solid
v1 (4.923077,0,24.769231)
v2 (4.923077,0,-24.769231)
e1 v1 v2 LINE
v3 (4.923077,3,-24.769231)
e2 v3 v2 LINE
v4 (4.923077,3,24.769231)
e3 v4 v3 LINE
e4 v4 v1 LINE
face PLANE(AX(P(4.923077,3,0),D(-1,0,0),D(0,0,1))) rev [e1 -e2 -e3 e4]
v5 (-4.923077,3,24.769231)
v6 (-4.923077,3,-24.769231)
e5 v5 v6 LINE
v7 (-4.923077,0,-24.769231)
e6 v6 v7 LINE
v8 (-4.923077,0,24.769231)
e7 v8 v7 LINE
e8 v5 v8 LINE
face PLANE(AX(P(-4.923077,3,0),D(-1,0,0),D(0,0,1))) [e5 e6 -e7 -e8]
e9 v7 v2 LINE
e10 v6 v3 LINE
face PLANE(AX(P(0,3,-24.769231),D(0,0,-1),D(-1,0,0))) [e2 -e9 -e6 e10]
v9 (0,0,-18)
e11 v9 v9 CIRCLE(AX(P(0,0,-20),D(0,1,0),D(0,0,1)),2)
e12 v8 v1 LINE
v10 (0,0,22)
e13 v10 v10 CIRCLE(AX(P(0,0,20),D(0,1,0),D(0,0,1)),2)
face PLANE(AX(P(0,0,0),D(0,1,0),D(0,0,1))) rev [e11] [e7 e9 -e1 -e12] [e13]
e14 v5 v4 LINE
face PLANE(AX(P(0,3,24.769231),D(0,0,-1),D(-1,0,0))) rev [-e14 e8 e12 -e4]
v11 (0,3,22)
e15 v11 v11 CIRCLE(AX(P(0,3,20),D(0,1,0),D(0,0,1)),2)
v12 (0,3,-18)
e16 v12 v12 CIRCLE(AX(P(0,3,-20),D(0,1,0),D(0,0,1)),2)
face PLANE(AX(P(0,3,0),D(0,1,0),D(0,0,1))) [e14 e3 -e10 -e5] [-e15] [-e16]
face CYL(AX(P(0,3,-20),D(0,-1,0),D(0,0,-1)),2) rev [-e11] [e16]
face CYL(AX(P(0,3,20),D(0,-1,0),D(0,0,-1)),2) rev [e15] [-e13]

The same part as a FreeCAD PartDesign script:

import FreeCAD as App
import Part
import Sketcher
from FreeCAD import Vector
Q = App.Units.Quantity


def add_polygon(sketch, points):
    """Adds a closed chain of lines whose ends are joined by coincident constraints."""
    first, n = sketch.GeometryCount, len(points)
    for a, b in zip(points, points[1:] + points[:1]):
        sketch.addGeometry(Part.LineSegment(App.Vector(*a, 0), App.Vector(*b, 0)), False)
    for i in range(n):
        sketch.addConstraint(Sketcher.Constraint("Coincident", first + i, 2, first + (i + 1) % n, 1))

doc = App.newDocument("Part")
params = doc.addObject("Spreadsheet::Sheet", "Params")
for row, (alias, value) in enumerate([
    ("sketch1_diameter", "4 mm"),
    ("pad1_length", "3 mm"),
], start=1):
    params.set(f"A{row}", alias)
    params.set(f"B{row}", "=" + value)
    params.setAlias(f"B{row}", alias)

body = doc.addObject("PartDesign::Body", "Body")

sketch1 = doc.addObject("Sketcher::SketchObject", "Sketch")
body.addObject(sketch1)
sketch1.AttachmentSupport = (doc.XZ_Plane, [""])
sketch1.MapMode = "FlatFace"
add_polygon(sketch1, [(-4.923077, -24.769231), (-4.923077, 24.769231), (4.923077, 24.769231), (4.923077, -24.769231)])
sketch1.addGeometry(Part.Circle(Vector(0, 20, 0), Vector(0, 0, 1), 2), False)
sketch1.addGeometry(Part.Circle(Vector(0, -20, 0), Vector(0, 0, 1), 2), False)
sketch1.addConstraint([
    Sketcher.Constraint("Vertical", 0),
    Sketcher.Constraint("Horizontal", 1),
    Sketcher.Constraint("Vertical", 2),
    Sketcher.Constraint("Horizontal", 3),
    Sketcher.Constraint("Equal", 4, 5),
    Sketcher.Constraint("Symmetric", 4, 3, 5, 3, -1, 1),
    Sketcher.Constraint("Symmetric", 0, 2, 2, 2, -1, 1),
    Sketcher.Constraint("PointOnObject", 4, 3, -2),
    Sketcher.Constraint("Diameter", 4, Q("4 mm")),
    Sketcher.Constraint("DistanceY", -1, 1, 4, 3, Q("20 mm")),
    Sketcher.Constraint("DistanceY", 0, 1, 0, 2, Q("49.538462 mm")),
    Sketcher.Constraint("DistanceX", 1, 1, 1, 2, Q("9.846154 mm")),
])
sketch1.setExpression("Constraints[12]", "Params.sketch1_diameter")
pad1 = doc.addObject("PartDesign::Pad", "Pad")
body.addObject(pad1)
pad1.Profile = sketch1
pad1.setExpression("Length", "Params.pad1_length")
pad1.Reversed = True

doc.recompute()
